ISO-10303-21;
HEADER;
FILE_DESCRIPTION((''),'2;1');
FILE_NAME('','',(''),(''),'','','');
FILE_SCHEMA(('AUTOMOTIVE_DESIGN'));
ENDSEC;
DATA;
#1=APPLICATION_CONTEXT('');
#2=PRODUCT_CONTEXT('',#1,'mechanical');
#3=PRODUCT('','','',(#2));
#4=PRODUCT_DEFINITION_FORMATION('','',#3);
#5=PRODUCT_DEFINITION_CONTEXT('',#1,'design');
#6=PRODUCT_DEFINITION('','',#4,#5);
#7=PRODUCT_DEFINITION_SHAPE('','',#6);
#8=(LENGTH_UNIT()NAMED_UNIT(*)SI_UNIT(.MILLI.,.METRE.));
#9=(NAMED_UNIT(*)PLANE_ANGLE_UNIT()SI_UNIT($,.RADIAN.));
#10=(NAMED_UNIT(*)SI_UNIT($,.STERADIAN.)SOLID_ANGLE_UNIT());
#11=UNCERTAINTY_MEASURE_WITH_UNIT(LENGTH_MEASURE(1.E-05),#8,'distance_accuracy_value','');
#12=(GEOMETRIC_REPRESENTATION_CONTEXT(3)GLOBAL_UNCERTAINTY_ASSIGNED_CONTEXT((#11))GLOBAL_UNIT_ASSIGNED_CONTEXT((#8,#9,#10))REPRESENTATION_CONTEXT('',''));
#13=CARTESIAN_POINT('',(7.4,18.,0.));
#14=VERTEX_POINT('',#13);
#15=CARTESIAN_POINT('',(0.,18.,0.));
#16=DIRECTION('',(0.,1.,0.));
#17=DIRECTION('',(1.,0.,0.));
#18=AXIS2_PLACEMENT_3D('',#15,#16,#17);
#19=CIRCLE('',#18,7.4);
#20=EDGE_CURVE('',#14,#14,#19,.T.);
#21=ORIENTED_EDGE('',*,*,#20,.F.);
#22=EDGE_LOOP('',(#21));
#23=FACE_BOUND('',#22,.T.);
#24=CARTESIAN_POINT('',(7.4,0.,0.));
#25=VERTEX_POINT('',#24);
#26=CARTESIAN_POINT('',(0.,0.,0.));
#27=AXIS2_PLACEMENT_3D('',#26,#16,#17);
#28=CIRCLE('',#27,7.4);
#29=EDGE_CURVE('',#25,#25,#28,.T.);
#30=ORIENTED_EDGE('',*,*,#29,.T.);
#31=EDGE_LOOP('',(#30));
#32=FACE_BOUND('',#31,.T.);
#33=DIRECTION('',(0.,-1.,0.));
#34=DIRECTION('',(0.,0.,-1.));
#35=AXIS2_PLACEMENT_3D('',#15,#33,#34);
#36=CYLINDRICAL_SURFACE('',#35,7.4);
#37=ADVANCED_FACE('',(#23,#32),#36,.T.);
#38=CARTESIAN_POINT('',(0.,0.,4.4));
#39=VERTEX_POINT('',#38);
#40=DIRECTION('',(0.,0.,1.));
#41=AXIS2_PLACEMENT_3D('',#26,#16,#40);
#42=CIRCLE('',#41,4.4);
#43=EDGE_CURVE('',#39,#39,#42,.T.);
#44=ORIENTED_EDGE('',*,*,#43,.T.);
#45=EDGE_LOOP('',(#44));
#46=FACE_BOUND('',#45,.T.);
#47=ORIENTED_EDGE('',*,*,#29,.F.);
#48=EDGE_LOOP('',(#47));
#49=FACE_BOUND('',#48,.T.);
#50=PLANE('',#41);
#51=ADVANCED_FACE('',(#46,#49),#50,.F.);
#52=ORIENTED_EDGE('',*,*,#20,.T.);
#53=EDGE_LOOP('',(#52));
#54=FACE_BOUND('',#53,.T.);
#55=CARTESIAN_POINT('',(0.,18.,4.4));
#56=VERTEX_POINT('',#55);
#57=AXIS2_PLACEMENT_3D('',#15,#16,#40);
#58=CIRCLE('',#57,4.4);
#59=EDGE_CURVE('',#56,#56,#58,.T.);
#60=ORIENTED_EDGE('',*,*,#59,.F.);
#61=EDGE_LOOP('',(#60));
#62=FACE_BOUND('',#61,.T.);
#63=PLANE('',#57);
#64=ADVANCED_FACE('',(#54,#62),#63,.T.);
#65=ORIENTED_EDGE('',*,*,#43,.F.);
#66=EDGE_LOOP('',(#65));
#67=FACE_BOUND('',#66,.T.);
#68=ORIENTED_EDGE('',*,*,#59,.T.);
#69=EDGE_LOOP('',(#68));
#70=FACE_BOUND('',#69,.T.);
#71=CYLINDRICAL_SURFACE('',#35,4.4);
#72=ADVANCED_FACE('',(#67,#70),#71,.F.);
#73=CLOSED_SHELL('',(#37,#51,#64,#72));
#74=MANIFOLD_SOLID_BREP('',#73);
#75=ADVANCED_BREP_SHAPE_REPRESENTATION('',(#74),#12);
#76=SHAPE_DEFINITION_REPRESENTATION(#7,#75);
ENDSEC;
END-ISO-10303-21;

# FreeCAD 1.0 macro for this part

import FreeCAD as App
import Part
import Sketcher

V = App.Vector
Q = App.Units.Quantity

doc = App.newDocument("Part")
body = doc.addObject("PartDesign::Body", "Body")

sketch1 = doc.addObject("Sketcher::SketchObject", "Sketch")
body.addObject(sketch1)
sketch1.AttachmentSupport = (doc.XZ_Plane, [""])
sketch1.MapMode = "FlatFace"
sketch1.addGeometry([
    Part.Circle(V(0, 0, 0), V(0, 0, 1), 7.4),
    Part.Circle(V(0, 0, 0), V(0, 0, 1), 4.4),
], False)
sketch1.addConstraint([
    Sketcher.Constraint("Coincident", 0, 3, -1, 1),
    Sketcher.Constraint("Coincident", 1, 3, -1, 1),
    Sketcher.Constraint("Diameter", 0, Q("14.8 mm")),
    Sketcher.Constraint("Diameter", 1, Q("8.8 mm")),
])
pad1 = doc.addObject("PartDesign::Pad", "Pad")
body.addObject(pad1)
pad1.Profile = sketch1
pad1.Length = 18
pad1.Reversed = True

doc.recompute()
